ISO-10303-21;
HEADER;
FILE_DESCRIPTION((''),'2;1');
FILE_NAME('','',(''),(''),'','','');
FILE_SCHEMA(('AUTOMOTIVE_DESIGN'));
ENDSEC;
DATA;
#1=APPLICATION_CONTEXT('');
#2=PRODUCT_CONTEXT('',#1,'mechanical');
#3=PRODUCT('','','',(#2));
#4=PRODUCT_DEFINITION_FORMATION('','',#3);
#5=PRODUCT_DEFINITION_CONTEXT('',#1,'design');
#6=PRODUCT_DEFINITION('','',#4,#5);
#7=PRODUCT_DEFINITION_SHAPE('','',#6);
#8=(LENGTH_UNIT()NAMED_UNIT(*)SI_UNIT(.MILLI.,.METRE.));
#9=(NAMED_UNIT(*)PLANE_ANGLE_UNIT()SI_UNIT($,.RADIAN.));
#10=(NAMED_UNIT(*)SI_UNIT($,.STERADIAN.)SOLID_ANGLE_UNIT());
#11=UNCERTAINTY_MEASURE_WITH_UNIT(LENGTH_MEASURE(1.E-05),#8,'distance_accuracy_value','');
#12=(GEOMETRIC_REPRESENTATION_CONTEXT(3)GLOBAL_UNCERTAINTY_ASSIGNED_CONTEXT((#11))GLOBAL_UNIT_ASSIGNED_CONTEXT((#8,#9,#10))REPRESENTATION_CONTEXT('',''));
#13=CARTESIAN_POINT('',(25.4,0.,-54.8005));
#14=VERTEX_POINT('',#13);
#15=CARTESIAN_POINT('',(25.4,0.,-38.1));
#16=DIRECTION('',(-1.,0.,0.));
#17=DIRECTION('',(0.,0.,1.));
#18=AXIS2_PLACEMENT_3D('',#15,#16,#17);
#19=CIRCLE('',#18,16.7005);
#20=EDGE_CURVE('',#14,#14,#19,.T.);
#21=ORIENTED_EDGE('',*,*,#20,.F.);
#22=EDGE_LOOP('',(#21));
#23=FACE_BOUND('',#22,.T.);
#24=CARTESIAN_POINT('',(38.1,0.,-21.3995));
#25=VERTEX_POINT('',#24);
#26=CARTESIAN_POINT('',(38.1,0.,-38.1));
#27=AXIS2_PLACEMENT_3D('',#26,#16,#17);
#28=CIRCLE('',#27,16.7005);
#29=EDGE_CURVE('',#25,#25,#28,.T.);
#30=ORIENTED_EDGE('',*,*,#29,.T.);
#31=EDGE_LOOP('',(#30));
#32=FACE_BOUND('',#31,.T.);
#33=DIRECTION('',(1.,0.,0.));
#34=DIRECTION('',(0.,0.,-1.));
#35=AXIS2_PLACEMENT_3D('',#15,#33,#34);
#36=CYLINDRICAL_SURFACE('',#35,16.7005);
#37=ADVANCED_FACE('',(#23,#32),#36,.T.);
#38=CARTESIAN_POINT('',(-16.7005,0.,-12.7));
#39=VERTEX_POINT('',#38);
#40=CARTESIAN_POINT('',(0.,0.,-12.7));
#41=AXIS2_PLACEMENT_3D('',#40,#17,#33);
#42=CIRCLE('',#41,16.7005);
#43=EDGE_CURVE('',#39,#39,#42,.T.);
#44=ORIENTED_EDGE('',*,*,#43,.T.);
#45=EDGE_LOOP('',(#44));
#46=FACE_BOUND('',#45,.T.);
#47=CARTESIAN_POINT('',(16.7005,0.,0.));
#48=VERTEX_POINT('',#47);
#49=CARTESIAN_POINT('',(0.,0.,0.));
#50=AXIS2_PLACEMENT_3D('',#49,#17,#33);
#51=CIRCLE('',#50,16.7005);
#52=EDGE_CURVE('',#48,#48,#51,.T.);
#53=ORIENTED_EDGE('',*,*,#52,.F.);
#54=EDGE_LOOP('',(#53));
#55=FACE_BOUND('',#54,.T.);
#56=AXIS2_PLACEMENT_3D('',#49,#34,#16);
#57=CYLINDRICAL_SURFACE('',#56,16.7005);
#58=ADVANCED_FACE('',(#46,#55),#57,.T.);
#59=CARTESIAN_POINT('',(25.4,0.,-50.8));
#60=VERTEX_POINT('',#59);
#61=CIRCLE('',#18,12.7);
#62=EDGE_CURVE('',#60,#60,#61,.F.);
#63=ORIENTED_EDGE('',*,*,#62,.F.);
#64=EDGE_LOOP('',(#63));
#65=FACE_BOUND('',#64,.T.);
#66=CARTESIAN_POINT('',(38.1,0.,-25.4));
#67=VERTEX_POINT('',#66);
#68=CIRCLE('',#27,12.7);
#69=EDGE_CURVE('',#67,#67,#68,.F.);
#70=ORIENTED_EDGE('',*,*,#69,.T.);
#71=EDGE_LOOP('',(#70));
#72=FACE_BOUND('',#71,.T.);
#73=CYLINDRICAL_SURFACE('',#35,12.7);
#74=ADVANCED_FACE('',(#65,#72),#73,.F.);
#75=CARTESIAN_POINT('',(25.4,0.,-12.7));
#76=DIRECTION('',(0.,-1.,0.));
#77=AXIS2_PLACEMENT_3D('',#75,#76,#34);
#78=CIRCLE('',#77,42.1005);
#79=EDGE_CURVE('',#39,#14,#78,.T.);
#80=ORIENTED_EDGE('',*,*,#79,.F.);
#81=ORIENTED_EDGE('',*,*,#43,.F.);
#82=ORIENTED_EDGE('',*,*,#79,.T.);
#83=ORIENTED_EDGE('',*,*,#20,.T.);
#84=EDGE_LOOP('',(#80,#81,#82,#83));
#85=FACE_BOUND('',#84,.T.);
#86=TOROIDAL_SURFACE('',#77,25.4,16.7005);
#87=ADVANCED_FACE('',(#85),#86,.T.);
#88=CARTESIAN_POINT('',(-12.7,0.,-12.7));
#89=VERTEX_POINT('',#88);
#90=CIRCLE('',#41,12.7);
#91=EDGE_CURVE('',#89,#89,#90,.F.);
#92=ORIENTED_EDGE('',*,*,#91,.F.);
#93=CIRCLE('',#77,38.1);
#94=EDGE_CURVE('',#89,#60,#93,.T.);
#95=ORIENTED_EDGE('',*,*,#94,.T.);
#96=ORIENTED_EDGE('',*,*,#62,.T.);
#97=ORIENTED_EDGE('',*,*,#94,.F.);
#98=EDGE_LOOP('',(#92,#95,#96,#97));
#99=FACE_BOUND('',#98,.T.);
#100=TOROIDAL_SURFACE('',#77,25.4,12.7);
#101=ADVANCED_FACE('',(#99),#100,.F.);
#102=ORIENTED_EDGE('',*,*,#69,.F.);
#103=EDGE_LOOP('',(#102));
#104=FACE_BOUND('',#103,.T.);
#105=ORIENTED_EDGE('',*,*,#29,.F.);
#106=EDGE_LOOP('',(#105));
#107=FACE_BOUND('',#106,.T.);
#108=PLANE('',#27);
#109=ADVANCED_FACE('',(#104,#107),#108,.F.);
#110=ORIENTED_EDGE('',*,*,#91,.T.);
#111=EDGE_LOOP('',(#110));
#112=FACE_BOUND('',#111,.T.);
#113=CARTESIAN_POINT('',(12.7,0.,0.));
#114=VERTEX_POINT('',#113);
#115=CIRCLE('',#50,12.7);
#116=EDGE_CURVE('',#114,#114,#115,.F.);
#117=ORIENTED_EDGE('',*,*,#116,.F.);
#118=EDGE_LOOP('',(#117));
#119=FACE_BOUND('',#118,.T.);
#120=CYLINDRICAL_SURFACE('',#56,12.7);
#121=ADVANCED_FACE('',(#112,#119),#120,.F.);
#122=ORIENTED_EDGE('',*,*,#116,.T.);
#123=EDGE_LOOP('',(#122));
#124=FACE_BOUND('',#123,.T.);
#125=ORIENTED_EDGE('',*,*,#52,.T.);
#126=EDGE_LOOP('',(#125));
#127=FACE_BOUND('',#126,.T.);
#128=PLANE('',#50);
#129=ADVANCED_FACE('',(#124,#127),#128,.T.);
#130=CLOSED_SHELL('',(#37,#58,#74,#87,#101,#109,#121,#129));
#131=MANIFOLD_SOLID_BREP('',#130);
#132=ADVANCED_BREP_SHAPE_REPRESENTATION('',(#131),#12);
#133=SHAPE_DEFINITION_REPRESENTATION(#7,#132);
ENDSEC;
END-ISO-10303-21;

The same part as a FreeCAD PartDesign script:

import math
import FreeCAD as App
import Part
import Sketcher
Q = App.Units.Quantity

doc = App.newDocument("Part")
body = doc.addObject("PartDesign::Body", "Body")

# Sketch on XY plane
sketch1 = body.newObject("Sketcher::SketchObject", "Sketch")
sketch1.AttachmentSupport = (doc.getObject("XY_Plane"), [""])
sketch1.MapMode = "FlatFace"
sketch1.addGeometry(Part.Circle(App.Vector(0, 0, 0), App.Vector(0, 0, 1), 16.7005), False)
sketch1.addGeometry(Part.Circle(App.Vector(0, 0, 0), App.Vector(0, 0, 1), 12.7), False)
sketch1.addConstraint(Sketcher.Constraint("Coincident", 0, 3, -1, 1))
sketch1.addConstraint(Sketcher.Constraint("Coincident", 1, 3, -1, 1))
sketch1.addConstraint(Sketcher.Constraint("Diameter", 1, Q("1 in")))
sketch1.addConstraint(Sketcher.Constraint("Diameter", 0, Q("1.315 in")))

# Sketch on XZ plane
sketch2 = body.newObject("Sketcher::SketchObject", "Sketch001")
sketch2.AttachmentSupport = (doc.getObject("XZ_Plane"), [""])
sketch2.MapMode = "FlatFace"
sketch2.addGeometry(Part.LineSegment(App.Vector(0, 0, 0), App.Vector(0, -12.7, 0)), False)
sketch2.addGeometry(Part.ArcOfCircle(Part.Circle(App.Vector(25.4, -12.7, 0), App.Vector(0, 0, 1), 25.4), math.radians(180), math.radians(270)), False)
sketch2.addGeometry(Part.LineSegment(App.Vector(25.4, -38.1, 0), App.Vector(38.1, -38.1, 0)), False)
sketch2.addConstraint(Sketcher.Constraint("Tangent", 0, 2, 1, 1))
sketch2.addConstraint(Sketcher.Constraint("Tangent", 1, 2, 2, 1))
sketch2.addConstraint(Sketcher.Constraint("Vertical", 0))
sketch2.addConstraint(Sketcher.Constraint("Horizontal", 2))
sketch2.addConstraint(Sketcher.Constraint("Coincident", 0, 1, -1, 1))
sketch2.addConstraint(Sketcher.Constraint("Equal", 2, 0))
sketch2.addConstraint(Sketcher.Constraint("Radius", 1, Q("1 in")))
sketch2.addConstraint(Sketcher.Constraint("DistanceX", 2, 1, 2, 2, Q("0.5 in")))
doc.recompute()

additivepipe = body.newObject("PartDesign::AdditivePipe", "AdditivePipe")
additivepipe.Profile = sketch1
additivepipe.Spine = (sketch2, ["Edge1", "Edge2", "Edge3"])

doc.recompute()
